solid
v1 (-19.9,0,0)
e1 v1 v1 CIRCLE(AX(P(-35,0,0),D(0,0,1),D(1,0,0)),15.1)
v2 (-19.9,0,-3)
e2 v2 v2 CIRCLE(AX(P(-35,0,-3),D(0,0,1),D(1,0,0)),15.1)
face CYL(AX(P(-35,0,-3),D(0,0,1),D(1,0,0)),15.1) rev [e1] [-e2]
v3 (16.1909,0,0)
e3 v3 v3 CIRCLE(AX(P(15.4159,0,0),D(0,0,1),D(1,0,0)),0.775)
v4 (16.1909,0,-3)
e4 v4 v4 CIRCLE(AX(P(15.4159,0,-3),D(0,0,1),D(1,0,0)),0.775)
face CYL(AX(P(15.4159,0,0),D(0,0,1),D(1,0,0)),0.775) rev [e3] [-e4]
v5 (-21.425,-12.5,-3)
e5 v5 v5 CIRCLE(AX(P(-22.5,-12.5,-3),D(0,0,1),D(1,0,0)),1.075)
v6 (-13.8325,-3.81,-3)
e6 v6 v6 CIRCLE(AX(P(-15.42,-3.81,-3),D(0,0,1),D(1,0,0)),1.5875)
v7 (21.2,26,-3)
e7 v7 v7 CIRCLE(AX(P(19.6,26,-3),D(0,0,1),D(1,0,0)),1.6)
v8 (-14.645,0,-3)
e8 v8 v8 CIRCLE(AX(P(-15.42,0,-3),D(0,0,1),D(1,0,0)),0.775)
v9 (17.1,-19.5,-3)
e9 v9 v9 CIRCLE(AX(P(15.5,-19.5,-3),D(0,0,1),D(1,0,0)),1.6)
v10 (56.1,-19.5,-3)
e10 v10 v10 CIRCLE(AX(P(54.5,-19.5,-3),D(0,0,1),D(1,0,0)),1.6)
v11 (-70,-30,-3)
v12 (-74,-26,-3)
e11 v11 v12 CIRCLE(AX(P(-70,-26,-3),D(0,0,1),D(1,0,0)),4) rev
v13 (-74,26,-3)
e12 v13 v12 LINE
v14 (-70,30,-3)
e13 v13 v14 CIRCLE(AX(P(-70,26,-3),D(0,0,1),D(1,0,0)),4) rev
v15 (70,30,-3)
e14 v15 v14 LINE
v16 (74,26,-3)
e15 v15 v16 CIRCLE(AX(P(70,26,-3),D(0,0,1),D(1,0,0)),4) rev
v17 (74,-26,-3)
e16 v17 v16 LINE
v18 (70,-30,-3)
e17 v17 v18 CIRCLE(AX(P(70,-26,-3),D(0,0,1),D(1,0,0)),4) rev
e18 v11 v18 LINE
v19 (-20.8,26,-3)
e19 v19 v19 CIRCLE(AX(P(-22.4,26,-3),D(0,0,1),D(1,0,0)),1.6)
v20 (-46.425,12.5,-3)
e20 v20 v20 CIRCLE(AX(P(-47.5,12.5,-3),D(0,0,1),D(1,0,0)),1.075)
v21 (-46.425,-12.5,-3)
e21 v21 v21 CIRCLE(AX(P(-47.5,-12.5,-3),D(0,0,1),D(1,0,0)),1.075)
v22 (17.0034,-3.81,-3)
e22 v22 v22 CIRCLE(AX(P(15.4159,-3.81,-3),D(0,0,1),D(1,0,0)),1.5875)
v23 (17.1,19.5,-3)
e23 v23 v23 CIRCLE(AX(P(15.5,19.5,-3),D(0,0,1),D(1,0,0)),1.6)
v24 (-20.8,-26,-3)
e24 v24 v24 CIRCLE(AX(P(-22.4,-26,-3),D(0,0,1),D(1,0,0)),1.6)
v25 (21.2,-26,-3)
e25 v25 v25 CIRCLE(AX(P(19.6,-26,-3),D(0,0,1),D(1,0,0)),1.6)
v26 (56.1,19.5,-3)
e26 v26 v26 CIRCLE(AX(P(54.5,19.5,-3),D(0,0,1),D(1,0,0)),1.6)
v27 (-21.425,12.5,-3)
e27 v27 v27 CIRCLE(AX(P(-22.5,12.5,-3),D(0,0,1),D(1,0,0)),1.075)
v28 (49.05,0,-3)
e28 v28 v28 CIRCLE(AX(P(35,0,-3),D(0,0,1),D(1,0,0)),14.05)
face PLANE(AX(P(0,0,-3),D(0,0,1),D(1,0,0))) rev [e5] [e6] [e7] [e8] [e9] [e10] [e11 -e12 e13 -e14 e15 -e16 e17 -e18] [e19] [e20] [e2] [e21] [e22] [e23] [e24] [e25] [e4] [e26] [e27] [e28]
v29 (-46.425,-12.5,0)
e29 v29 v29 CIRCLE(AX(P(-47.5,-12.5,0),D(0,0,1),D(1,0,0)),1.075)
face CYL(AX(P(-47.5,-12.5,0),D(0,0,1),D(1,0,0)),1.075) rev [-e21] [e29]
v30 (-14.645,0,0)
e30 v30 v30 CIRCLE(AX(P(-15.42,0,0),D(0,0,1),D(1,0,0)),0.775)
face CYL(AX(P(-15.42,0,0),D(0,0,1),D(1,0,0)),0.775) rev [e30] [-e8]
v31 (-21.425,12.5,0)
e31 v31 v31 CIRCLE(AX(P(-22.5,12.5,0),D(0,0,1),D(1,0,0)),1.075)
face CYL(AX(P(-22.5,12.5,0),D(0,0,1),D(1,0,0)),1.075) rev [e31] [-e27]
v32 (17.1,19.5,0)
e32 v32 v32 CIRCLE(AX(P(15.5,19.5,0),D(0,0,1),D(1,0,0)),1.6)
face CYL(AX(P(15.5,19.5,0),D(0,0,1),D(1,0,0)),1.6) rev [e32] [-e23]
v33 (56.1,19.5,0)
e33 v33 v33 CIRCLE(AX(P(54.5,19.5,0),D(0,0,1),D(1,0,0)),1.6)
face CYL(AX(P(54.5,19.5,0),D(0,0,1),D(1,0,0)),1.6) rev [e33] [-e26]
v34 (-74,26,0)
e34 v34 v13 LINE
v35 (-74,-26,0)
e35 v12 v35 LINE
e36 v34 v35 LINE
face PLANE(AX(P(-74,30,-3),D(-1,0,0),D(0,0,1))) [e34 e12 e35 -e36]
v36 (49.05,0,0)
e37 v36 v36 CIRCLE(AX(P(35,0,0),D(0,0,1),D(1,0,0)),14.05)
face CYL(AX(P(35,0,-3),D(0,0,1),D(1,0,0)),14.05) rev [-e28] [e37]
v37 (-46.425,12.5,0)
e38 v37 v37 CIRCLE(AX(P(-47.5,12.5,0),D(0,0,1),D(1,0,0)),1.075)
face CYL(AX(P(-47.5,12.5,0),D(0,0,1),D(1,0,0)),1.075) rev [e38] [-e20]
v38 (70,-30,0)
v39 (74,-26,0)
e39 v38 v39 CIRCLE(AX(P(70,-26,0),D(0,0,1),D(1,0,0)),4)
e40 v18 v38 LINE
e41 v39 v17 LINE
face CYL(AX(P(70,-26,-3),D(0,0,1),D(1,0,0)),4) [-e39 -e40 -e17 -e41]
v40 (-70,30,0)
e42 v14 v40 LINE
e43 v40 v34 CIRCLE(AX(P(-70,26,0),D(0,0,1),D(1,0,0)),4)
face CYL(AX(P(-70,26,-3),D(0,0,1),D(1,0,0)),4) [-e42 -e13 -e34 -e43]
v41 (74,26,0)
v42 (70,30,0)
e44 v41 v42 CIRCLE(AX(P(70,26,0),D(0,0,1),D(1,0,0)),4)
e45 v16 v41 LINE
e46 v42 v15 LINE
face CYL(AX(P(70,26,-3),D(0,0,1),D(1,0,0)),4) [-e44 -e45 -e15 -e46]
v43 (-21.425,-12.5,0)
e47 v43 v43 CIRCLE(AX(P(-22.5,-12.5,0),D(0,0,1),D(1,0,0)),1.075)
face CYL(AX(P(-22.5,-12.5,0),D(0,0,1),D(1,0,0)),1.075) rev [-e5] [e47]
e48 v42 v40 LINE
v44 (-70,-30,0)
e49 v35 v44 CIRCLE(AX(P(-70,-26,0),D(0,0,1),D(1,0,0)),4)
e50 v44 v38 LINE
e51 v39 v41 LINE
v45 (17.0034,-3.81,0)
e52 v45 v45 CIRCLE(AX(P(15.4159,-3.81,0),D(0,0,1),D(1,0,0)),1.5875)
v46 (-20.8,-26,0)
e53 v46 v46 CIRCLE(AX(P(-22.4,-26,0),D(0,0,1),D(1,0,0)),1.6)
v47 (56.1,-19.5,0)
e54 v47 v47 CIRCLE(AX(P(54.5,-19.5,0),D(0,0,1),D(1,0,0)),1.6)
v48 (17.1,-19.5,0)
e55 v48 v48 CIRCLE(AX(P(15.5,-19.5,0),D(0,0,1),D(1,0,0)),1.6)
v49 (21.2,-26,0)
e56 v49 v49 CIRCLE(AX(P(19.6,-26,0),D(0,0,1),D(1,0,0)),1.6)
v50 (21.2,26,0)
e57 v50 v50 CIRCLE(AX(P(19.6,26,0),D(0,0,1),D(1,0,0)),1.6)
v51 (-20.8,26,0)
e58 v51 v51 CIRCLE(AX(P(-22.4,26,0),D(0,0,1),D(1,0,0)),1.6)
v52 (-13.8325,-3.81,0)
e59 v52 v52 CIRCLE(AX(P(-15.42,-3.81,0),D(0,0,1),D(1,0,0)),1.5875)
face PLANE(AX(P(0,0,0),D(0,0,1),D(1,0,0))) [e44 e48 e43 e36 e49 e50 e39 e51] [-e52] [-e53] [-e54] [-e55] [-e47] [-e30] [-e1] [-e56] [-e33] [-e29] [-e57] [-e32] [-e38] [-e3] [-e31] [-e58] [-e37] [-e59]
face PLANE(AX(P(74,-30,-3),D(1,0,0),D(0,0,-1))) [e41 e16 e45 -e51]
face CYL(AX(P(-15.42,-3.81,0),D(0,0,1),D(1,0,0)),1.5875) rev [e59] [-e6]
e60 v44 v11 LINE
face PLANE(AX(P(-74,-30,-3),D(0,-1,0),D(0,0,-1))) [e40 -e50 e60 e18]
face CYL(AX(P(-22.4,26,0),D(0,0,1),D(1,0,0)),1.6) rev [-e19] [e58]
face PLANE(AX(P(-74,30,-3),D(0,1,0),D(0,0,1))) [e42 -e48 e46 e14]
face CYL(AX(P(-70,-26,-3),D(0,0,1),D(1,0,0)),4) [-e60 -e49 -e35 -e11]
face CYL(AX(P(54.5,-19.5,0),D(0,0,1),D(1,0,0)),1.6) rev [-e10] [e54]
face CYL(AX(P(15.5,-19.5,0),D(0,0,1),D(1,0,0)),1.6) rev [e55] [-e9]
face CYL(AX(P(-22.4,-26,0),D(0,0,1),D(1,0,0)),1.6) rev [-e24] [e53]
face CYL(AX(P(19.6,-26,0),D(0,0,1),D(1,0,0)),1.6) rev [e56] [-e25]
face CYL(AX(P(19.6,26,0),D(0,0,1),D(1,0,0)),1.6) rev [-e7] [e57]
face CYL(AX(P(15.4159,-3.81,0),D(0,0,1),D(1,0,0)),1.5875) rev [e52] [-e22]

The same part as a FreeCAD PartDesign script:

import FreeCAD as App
import Part
import Sketcher
from FreeCAD import Vector
Q = App.Units.Quantity


def edges_at(feature, points):
    """Names of the edges that pass closest to the given points."""
    edges = feature.Shape.Edges
    near = lambda p: min(range(len(edges)), key=lambda i: edges[i].distToShape(Part.Vertex(*p))[0])
    return sorted({f"Edge{near(p) + 1}" for p in points})

doc = App.newDocument("Part")
body = doc.addObject("PartDesign::Body", "Body")

# Sketch on XY plane
sketch1 = body.newObject("Sketcher::SketchObject", "Sketch")
sketch1.AttachmentSupport = (doc.getObject("XY_Plane"), [""])
sketch1.MapMode = "FlatFace"
sketch1.addGeometry([
    Part.LineSegment(Vector(-74, 30, 0), Vector(-74, -30, 0)),  # 0
    Part.LineSegment(Vector(-74, -30, 0), Vector(74, -30, 0)),  # 1
    Part.LineSegment(Vector(74, -30, 0), Vector(74, 30, 0)),  # 2
    Part.LineSegment(Vector(74, 30, 0), Vector(-74, 30, 0)),  # 3
    Part.Circle(Vector(-35, 0, 0), Vector(0, 0, 1), 15),  # 4
    Part.Circle(Vector(35, 0, 0), Vector(0, 0, 1), 14),  # 5
], False)
sketch1.addConstraint([
    Sketcher.Constraint("Coincident", 0, 2, 1, 1),
    Sketcher.Constraint("Coincident", 1, 2, 2, 1),
    Sketcher.Constraint("Coincident", 2, 2, 3, 1),
    Sketcher.Constraint("Coincident", 3, 2, 0, 1),
    Sketcher.Constraint("Vertical", 0),
    Sketcher.Constraint("Horizontal", 1),
    Sketcher.Constraint("Vertical", 2),
    Sketcher.Constraint("Horizontal", 3),
    Sketcher.Constraint("Symmetric", 4, 3, 5, 3, -1, 1),
    Sketcher.Constraint("Symmetric", 0, 2, 2, 2, -1, 1),
    Sketcher.Constraint("PointOnObject", 4, 3, -1),
    Sketcher.Constraint("Diameter", 4, Q("30.2 mm")),
    Sketcher.Constraint("Diameter", 5, Q("28.1 mm")),
    Sketcher.Constraint("DistanceX", 1, 1, 1, 2, Q("148 mm")),
    Sketcher.Constraint("DistanceY", 0, 2, 0, 1, Q("60 mm")),
    Sketcher.Constraint("DistanceX", 4, 3, -1, 1, Q("35 mm")),
])
pad1 = body.newObject("PartDesign::Pad", "Pad")
pad1.Profile = sketch1
pad1.Length = 3
pad1.Reversed = True
doc.recompute()

fillet = body.newObject("PartDesign::Fillet", "Fillet")
fillet.Base = (pad1, edges_at(pad1, [
    (-74, 30, -1.5),
    (74, 30, -1.5),
    (74, -30, -1.5),
    (-74, -30, -1.5),
]))
fillet.Radius = 4

# Sketch on XY plane
sketch2 = body.newObject("Sketcher::SketchObject", "Sketch001")
sketch2.AttachmentSupport = (doc.getObject("XY_Plane"), [""])
sketch2.MapMode = "FlatFace"
sketch2.addGeometry([
    Part.Circle(Vector(-47.5, 12.5, 0), Vector(0, 0, 1), 1.1),
    Part.Circle(Vector(-22.5, 12.5, 0), Vector(0, 0, 1), 1.1),
    Part.Circle(Vector(-22.5, -12.5, 0), Vector(0, 0, 1), 1.1),
    Part.Circle(Vector(-47.5, -12.5, 0), Vector(0, 0, 1), 1.1),
], False)
sketch2.addConstraint([
    Sketcher.Constraint("Equal", 0, 1),
    Sketcher.Constraint("Equal", 1, 2),
    Sketcher.Constraint("Equal", 2, 3),
    Sketcher.Constraint("Symmetric", 1, 3, 2, 3, -1),
    Sketcher.Constraint("Symmetric", 0, 3, 3, 3, -1),
    Sketcher.Constraint("Horizontal", 0, 3, 1, 3),
    Sketcher.Constraint("Diameter", 0, Q("2.15 mm")),
    Sketcher.Constraint("DistanceX", 0, 3, 1, 3, Q("25 mm")),
    Sketcher.Constraint("DistanceY", 2, 3, 1, 3, Q("25 mm")),
    Sketcher.Constraint("DistanceX", 0, 3, -1, 1, Q("47.5 mm")),
])
doc.recompute()
hole = body.newObject("PartDesign::Hole", "Hole")
hole.Profile = sketch2
hole.ThreadType = "None"
hole.Diameter = 2.15
hole.DepthType = "ThroughAll"

# Sketch on XY plane
sketch3 = body.newObject("Sketcher::SketchObject", "Sketch002")
sketch3.AttachmentSupport = (doc.getObject("XY_Plane"), [""])
sketch3.MapMode = "FlatFace"
sketch3.addGeometry([
    Part.Circle(Vector(15.5, 19.5, 0), Vector(0, 0, 1), 1.6),
    Part.Circle(Vector(54.5, 19.5, 0), Vector(0, 0, 1), 1.6),
    Part.Circle(Vector(54.5, -19.5, 0), Vector(0, 0, 1), 1.6),
    Part.Circle(Vector(15.5, -19.5, 0), Vector(0, 0, 1), 1.6),
], False)
sketch3.addConstraint([
    Sketcher.Constraint("Equal", 0, 1),
    Sketcher.Constraint("Equal", 1, 2),
    Sketcher.Constraint("Equal", 2, 3),
    Sketcher.Constraint("Symmetric", 1, 3, 2, 3, -1),
    Sketcher.Constraint("Symmetric", 0, 3, 3, 3, -1),
    Sketcher.Constraint("Horizontal", 0, 3, 1, 3),
    Sketcher.Constraint("Diameter", 0, Q("3.2 mm")),
    Sketcher.Constraint("DistanceX", 0, 3, 1, 3, Q("39 mm")),
    Sketcher.Constraint("DistanceY", 2, 3, 1, 3, Q("39 mm")),
    Sketcher.Constraint("DistanceX", -1, 1, 0, 3, Q("15.5 mm")),
])
doc.recompute()
hole2 = body.newObject("PartDesign::Hole", "Hole001")
hole2.Profile = sketch3
hole2.ThreadType = "None"
hole2.Diameter = 3.2
hole2.DepthType = "ThroughAll"

# Sketch on XY plane
sketch4 = body.newObject("Sketcher::SketchObject", "Sketch003")
sketch4.AttachmentSupport = (doc.getObject("XY_Plane"), [""])
sketch4.MapMode = "FlatFace"
sketch4.addGeometry([
    Part.Circle(Vector(-15.4, -3.8, 0), Vector(0, 0, 1), 1.6),
    Part.Circle(Vector(15.4, -3.8, 0), Vector(0, 0, 1), 1.6),
], False)
sketch4.addConstraint([
    Sketcher.Constraint("Equal", 0, 1),
    Sketcher.Constraint("Horizontal", 0, 3, 1, 3),
    Sketcher.Constraint("Diameter", 0, Q("3.175 mm")),
    Sketcher.Constraint("DistanceX", 0, 3, -1, 1, Q("15.42 mm")),
    Sketcher.Constraint("DistanceY", 0, 3, -1, 1, Q("3.81 mm")),
    Sketcher.Constraint("DistanceX", -1, 1, 1, 3, Q("15.4159 mm")),
])
doc.recompute()
hole3 = body.newObject("PartDesign::Hole", "Hole002")
hole3.Profile = sketch4
hole3.ThreadType = "None"
hole3.Diameter = 3.175
hole3.DepthType = "ThroughAll"

# Sketch on XY plane
sketch5 = body.newObject("Sketcher::SketchObject", "Sketch004")
sketch5.AttachmentSupport = (doc.getObject("XY_Plane"), [""])
sketch5.MapMode = "FlatFace"
sketch5.addGeometry([
    Part.Circle(Vector(-15.4, 0, 0), Vector(0, 0, 1), 0.8),
    Part.Circle(Vector(15.4, 0, 0), Vector(0, 0, 1), 0.8),
], False)
sketch5.addConstraint([
    Sketcher.Constraint("Equal", 0, 1),
    Sketcher.Constraint("PointOnObject", 0, 3, -1),
    Sketcher.Constraint("PointOnObject", 1, 3, -1),
    Sketcher.Constraint("Diameter", 0, Q("1.55 mm")),
    Sketcher.Constraint("DistanceX", 0, 3, -1, 1, Q("15.42 mm")),
    Sketcher.Constraint("DistanceX", -1, 1, 1, 3, Q("15.4159 mm")),
])
doc.recompute()
hole4 = body.newObject("PartDesign::Hole", "Hole003")
hole4.Profile = sketch5
hole4.ThreadType = "None"
hole4.Diameter = 1.55
hole4.DepthType = "ThroughAll"

# Sketch on XY plane
sketch6 = body.newObject("Sketcher::SketchObject", "Sketch005")
sketch6.AttachmentSupport = (doc.getObject("XY_Plane"), [""])
sketch6.MapMode = "FlatFace"
sketch6.addGeometry([
    Part.Circle(Vector(-22.4, 26, 0), Vector(0, 0, 1), 1.6),
    Part.Circle(Vector(19.6, 26, 0), Vector(0, 0, 1), 1.6),
    Part.Circle(Vector(19.6, -26, 0), Vector(0, 0, 1), 1.6),
    Part.Circle(Vector(-22.4, -26, 0), Vector(0, 0, 1), 1.6),
], False)
sketch6.addConstraint([
    Sketcher.Constraint("Equal", 0, 1),
    Sketcher.Constraint("Equal", 1, 2),
    Sketcher.Constraint("Equal", 2, 3),
    Sketcher.Constraint("Symmetric", 1, 3, 2, 3, -1),
    Sketcher.Constraint("Symmetric", 0, 3, 3, 3, -1),
    Sketcher.Constraint("Horizontal", 0, 3, 1, 3),
    Sketcher.Constraint("Diameter", 0, Q("3.2 mm")),
    Sketcher.Constraint("DistanceY", -1, 1, 0, 3, Q("26 mm")),
    Sketcher.Constraint("DistanceX", 0, 3, 1, 3, Q("42 mm")),
    Sketcher.Constraint("DistanceX", 0, 3, -1, 1, Q("22.4 mm")),
])
doc.recompute()
hole5 = body.newObject("PartDesign::Hole", "Hole004")
hole5.Profile = sketch6
hole5.ThreadType = "None"
hole5.Diameter = 3.2
hole5.DepthType = "ThroughAll"

doc.recompute()
